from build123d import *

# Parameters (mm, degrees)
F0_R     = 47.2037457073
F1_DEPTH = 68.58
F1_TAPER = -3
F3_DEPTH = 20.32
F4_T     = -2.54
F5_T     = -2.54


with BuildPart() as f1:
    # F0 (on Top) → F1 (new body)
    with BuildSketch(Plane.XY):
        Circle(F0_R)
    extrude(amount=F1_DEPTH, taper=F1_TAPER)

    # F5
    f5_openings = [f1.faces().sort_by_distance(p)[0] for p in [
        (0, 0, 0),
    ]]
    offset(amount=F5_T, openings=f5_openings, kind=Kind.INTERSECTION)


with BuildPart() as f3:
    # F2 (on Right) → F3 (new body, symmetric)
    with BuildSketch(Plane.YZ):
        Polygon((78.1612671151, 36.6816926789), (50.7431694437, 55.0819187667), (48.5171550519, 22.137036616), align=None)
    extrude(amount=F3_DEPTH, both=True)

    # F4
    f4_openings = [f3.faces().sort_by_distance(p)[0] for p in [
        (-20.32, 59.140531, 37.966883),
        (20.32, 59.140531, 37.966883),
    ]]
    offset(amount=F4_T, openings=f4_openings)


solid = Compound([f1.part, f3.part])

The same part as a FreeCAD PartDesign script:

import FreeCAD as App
import Part
import Sketcher

V = App.Vector
Q = App.Units.Quantity


def faces_at(feature, points):
    """Names of the faces that lie closest to the given points."""
    faces = feature.Shape.Faces
    near = lambda p: min(range(len(faces)), key=lambda i: faces[i].distToShape(Part.Vertex(*p))[0])
    return sorted({f"Face{near(p) + 1}" for p in points})

doc = App.newDocument("Part")
body = doc.addObject("PartDesign::Body", "Body")

# Sketch on XY plane
sketch1 = doc.addObject("Sketcher::SketchObject", "Sketch")
body.addObject(sketch1)
sketch1.AttachmentSupport = (doc.XY_Plane, [""])
sketch1.MapMode = "FlatFace"
sketch1.addGeometry(Part.Circle(V(0, 0, 0), V(0, 0, 1), 47), False)
sketch1.addConstraint([
    Sketcher.Constraint("Coincident", 0, 3, -1, 1),
    Sketcher.Constraint("Diameter", 0, 94.407491),
])
pad1 = doc.addObject("PartDesign::Pad", "Pad")
body.addObject(pad1)
pad1.Profile = sketch1
pad1.Length = Q("2.7 in")
pad1.TaperAngle = 3
doc.recompute()

thickness = doc.addObject("PartDesign::Thickness", "Thickness")
body.addObject(thickness)
thickness.Base = (pad1, faces_at(pad1, [(0, 0, 0)]))
thickness.Value = Q("0.1 in")
thickness.Reversed = True
thickness.Join = "Intersection"
body2 = doc.addObject("PartDesign::Body", "Body001")

# Sketch on YZ plane
sketch2 = doc.addObject("Sketcher::SketchObject", "Sketch001")
body2.addObject(sketch2)
sketch2.AttachmentSupport = (doc.getObject("YZ_Plane001"), [""])
sketch2.MapMode = "FlatFace"
sketch2.addGeometry([
    Part.LineSegment(V(78, 37, 0), V(51, 55, 0)),
    Part.LineSegment(V(51, 55, 0), V(49, 22, 0)),
    Part.LineSegment(V(49, 22, 0), V(78, 37, 0)),
], False)
sketch2.addConstraint([
    Sketcher.Constraint("Coincident", 0, 2, 1, 1),
    Sketcher.Constraint("Coincident", 1, 2, 2, 1),
    Sketcher.Constraint("Coincident", 2, 2, 0, 1),
    Sketcher.Constraint("Equal", 0, 1),
    Sketcher.Constraint("Equal", 1, 2),
    Sketcher.Constraint("Distance", 0, Q("1.3 in")),
    Sketcher.Constraint("DistanceX", -1, 1, 0, 2, 50.743169),
    Sketcher.Constraint("DistanceY", -1, 1, 0, 2, 55.081919),
    Sketcher.Constraint("DistanceX", -1, 1, 1, 2, 48.517155),
])
pad2 = doc.addObject("PartDesign::Pad", "Pad001")
body2.addObject(pad2)
pad2.Profile = sketch2
pad2.Length = Q("1.6 in")
pad2.Midplane = True
doc.recompute()

thickness2 = doc.addObject("PartDesign::Thickness", "Thickness001")
body2.addObject(thickness2)
thickness2.Base = (pad2, faces_at(pad2, [(-20.32, 63.339, 38.609), (20.32, 63.339, 38.609)]))
thickness2.Value = Q("0.1 in")
thickness2.Reversed = True
thickness2.Join = "Arc"

doc.recompute()
